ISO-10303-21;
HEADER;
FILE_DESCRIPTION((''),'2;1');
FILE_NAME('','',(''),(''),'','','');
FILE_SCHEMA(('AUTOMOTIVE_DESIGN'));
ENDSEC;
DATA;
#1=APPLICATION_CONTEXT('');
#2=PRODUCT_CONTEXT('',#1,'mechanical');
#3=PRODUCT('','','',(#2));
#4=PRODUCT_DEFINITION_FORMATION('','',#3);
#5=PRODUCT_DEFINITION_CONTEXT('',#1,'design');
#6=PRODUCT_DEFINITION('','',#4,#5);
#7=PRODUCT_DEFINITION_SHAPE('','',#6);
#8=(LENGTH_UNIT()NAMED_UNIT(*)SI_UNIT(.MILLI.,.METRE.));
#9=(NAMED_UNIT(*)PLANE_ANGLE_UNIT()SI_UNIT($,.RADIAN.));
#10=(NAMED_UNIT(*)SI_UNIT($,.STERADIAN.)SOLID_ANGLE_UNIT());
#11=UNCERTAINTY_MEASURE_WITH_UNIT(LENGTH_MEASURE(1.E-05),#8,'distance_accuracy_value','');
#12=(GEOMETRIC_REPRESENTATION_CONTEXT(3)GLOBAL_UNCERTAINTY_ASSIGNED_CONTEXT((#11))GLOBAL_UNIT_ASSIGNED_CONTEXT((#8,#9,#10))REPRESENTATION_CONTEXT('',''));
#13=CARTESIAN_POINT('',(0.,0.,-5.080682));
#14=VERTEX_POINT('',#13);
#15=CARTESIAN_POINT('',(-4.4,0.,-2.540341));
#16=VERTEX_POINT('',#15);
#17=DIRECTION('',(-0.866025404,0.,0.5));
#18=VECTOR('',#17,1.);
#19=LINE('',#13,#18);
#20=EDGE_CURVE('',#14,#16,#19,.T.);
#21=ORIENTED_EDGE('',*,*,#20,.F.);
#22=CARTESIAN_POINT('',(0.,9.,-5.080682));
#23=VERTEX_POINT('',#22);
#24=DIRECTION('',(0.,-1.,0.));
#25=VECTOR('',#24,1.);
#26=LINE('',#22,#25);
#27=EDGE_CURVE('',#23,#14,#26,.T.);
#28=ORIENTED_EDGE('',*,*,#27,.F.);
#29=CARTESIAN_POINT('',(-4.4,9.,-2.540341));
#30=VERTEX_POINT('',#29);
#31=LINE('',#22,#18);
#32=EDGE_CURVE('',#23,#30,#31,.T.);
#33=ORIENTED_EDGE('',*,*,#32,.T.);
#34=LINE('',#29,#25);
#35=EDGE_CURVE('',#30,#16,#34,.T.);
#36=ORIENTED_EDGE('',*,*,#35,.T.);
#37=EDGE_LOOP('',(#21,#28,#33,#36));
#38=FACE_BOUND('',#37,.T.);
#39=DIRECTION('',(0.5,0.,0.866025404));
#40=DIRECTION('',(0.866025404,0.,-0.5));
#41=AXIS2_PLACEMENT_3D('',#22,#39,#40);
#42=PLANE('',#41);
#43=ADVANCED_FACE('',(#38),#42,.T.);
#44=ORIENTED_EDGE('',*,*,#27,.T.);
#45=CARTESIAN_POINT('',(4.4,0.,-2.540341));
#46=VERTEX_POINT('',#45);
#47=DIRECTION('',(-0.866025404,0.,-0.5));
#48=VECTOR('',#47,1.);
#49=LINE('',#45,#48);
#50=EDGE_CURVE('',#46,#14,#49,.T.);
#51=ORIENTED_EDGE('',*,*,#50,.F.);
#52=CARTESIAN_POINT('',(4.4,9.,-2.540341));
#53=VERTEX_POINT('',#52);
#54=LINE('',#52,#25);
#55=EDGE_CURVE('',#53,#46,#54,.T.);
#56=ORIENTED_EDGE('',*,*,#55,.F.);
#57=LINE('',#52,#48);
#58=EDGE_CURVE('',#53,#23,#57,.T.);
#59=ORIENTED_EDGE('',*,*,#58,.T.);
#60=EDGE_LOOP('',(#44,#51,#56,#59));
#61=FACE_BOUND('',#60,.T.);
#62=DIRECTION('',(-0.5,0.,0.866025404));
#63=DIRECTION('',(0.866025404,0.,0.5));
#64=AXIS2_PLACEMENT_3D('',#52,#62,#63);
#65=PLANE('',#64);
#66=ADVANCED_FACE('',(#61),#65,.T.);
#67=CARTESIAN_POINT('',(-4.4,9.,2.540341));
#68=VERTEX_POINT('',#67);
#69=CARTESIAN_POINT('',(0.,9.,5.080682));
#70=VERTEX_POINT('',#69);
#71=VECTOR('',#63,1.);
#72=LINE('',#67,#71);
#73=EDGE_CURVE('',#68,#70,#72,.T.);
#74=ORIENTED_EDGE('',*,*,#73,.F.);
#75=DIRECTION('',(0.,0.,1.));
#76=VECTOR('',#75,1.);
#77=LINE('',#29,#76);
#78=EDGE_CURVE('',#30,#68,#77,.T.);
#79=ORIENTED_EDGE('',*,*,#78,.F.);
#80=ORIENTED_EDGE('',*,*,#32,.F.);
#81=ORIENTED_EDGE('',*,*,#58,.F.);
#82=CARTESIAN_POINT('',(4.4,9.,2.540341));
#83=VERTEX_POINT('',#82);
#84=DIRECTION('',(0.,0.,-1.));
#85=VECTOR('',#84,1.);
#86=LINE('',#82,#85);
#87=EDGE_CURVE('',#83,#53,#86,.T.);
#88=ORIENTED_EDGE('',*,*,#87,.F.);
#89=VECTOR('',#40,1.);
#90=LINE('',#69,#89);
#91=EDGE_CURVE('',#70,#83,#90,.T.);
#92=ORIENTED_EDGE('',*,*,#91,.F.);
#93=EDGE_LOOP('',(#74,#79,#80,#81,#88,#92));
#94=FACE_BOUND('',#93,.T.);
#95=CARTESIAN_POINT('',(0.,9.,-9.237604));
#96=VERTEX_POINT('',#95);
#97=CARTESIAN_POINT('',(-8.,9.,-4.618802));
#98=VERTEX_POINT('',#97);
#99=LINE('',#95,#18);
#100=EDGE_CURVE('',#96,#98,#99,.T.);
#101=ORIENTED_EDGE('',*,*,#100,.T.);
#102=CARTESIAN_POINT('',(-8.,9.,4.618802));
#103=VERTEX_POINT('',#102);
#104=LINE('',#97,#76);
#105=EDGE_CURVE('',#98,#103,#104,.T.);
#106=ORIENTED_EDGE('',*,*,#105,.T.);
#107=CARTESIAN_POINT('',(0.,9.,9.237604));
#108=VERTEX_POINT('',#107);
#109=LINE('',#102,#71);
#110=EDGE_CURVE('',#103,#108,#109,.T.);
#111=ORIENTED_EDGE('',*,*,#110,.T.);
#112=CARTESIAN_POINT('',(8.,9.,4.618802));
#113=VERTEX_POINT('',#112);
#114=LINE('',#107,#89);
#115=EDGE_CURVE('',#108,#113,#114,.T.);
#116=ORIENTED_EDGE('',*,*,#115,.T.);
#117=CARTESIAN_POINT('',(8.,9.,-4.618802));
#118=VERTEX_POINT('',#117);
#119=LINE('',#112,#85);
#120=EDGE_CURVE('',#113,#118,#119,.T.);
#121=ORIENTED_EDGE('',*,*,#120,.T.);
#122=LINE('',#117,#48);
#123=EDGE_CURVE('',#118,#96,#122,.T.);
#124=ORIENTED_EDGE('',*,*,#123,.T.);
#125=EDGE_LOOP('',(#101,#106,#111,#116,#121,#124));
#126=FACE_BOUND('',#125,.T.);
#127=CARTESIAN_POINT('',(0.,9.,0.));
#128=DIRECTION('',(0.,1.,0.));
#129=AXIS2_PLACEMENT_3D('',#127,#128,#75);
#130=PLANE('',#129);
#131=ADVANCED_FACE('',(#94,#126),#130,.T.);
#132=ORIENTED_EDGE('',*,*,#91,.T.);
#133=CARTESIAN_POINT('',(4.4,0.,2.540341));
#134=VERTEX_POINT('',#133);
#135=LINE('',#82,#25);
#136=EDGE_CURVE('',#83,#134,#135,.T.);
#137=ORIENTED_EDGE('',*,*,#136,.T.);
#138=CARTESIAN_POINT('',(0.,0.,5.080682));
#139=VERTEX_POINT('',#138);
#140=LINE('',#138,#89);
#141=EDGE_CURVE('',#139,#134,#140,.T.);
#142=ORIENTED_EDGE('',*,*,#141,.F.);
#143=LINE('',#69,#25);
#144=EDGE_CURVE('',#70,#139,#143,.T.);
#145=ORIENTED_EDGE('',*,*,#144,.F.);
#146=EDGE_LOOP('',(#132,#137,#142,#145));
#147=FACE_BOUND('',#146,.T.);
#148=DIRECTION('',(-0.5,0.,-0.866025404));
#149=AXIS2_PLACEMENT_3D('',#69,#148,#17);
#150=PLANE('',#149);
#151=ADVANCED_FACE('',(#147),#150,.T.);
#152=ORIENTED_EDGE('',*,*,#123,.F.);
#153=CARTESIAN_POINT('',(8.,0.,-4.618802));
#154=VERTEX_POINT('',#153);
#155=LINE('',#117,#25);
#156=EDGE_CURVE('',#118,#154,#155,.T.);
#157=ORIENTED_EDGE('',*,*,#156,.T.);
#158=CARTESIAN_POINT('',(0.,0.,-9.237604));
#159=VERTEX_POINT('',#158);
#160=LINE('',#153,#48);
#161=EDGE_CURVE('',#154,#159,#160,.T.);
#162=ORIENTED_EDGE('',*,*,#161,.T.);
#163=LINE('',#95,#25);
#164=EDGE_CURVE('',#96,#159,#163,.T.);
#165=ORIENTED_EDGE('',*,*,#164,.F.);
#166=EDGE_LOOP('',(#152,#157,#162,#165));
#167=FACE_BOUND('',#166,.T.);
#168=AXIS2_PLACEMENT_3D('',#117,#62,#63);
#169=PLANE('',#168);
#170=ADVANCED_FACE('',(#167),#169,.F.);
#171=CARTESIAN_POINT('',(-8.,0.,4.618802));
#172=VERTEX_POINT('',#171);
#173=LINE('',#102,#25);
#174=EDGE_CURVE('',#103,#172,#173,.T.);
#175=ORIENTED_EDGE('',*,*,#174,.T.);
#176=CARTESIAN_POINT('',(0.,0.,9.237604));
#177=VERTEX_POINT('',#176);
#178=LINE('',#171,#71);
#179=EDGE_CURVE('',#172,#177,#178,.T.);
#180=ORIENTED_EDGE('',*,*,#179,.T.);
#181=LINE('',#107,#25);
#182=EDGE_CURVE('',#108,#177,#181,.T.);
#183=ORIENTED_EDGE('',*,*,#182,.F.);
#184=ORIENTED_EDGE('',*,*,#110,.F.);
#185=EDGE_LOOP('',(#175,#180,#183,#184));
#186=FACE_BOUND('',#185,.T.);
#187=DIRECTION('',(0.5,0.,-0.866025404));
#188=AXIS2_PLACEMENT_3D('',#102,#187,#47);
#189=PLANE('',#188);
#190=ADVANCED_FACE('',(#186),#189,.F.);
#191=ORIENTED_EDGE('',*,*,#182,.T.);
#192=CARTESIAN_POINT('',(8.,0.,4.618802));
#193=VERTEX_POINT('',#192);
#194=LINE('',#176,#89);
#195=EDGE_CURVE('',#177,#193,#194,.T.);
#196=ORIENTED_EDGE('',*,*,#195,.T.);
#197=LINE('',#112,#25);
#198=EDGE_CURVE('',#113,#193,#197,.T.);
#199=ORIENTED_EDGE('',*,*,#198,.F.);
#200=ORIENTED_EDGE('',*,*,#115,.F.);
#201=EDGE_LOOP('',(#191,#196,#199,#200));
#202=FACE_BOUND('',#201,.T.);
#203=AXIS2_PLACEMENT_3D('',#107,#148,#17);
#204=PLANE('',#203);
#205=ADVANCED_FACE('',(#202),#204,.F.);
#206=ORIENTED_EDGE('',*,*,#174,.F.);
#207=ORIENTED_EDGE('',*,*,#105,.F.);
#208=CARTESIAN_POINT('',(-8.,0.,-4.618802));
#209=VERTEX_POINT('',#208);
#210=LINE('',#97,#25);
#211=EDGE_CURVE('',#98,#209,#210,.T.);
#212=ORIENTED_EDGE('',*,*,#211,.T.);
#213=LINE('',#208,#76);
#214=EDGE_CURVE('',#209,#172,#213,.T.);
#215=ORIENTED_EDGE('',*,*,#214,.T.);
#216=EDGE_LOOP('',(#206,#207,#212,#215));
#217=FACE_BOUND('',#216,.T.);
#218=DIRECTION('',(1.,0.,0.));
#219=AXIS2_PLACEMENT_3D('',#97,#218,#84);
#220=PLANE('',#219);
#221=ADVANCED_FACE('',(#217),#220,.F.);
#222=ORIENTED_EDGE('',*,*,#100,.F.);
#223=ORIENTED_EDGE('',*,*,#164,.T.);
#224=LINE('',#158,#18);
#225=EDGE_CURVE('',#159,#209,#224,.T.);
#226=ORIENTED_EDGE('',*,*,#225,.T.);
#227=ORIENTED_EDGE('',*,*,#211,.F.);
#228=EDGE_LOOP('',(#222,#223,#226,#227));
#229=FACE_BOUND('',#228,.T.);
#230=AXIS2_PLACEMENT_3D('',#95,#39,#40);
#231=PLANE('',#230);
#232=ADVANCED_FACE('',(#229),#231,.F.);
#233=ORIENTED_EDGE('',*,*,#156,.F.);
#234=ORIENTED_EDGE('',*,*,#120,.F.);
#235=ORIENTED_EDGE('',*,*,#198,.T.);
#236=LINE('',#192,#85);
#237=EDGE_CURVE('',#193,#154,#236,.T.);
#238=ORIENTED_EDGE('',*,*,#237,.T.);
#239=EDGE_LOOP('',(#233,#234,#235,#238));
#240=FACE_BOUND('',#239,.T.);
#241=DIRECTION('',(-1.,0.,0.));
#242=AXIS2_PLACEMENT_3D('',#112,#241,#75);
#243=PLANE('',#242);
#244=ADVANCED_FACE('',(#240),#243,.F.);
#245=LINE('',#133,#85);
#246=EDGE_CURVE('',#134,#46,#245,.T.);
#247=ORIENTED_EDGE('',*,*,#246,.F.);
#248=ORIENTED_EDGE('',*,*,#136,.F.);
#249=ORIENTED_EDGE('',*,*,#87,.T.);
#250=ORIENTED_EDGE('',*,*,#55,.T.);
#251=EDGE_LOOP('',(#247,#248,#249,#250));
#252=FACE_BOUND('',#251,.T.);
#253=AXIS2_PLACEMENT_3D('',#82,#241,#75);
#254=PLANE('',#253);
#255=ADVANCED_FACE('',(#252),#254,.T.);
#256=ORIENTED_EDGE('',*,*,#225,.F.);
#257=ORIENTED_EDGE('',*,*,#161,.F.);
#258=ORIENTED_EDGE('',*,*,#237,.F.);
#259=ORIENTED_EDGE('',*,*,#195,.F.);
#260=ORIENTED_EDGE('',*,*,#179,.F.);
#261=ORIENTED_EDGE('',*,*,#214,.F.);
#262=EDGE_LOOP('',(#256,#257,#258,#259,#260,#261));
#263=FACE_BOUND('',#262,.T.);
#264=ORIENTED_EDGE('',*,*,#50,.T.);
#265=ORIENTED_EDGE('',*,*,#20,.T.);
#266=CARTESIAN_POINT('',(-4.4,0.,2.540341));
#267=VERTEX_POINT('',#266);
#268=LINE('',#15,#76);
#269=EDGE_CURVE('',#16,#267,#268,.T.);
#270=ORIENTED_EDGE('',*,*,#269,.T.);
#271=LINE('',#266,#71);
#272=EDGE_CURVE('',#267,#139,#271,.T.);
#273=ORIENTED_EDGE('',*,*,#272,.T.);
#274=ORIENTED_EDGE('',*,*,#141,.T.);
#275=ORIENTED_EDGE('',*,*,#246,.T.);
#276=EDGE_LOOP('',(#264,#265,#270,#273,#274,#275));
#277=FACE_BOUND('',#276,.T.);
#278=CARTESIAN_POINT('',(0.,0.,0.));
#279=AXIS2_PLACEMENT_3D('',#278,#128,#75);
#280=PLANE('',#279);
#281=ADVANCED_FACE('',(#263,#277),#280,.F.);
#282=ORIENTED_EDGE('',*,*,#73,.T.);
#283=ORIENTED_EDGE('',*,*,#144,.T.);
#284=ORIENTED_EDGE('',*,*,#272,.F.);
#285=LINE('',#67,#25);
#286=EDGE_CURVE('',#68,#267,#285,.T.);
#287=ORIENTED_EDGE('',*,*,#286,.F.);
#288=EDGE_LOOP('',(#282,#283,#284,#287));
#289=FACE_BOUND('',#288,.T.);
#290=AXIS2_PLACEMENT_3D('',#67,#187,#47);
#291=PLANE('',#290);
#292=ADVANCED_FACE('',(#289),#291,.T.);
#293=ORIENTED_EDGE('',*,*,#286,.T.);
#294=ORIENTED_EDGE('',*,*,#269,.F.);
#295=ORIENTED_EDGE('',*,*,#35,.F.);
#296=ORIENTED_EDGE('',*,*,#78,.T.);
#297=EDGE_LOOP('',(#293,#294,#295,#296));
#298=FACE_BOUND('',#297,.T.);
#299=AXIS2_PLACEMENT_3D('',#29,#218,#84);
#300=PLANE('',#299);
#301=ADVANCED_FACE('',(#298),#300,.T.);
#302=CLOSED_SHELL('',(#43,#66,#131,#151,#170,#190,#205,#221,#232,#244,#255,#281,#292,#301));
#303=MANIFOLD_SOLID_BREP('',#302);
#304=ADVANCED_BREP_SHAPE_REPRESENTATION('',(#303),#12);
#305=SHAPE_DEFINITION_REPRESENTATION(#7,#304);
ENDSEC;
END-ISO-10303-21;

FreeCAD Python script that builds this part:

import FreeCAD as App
import Part
import Sketcher
from FreeCAD import Vector
Q = App.Units.Quantity


def add_polygon(sketch, points):
    """Adds a closed chain of lines whose ends are joined by coincident constraints."""
    first, n = sketch.GeometryCount, len(points)
    for a, b in zip(points, points[1:] + points[:1]):
        sketch.addGeometry(Part.LineSegment(App.Vector(*a, 0), App.Vector(*b, 0)), False)
    for i in range(n):
        sketch.addConstraint(Sketcher.Constraint("Coincident", first + i, 2, first + (i + 1) % n, 1))

doc = App.newDocument("Part")
body = doc.addObject("PartDesign::Body", "Body")

sketch1 = doc.addObject("Sketcher::SketchObject", "Sketch")
body.addObject(sketch1)
sketch1.AttachmentSupport = (doc.XZ_Plane, [""])
sketch1.MapMode = "FlatFace"
add_polygon(sketch1, [(0, 9), (8, 5), (8, -5), (0, -9), (-8, -5), (-8, 5)])
add_polygon(sketch1, [(4, 3), (0, 5), (-4, 3), (-4, -3), (0, -5), (4, -3)])
sketch1.addConstraint([
    Sketcher.Constraint("Vertical", 1),
    Sketcher.Constraint("Vertical", 4),
    Sketcher.Constraint("Vertical", 8),
    Sketcher.Constraint("Vertical", 11),
    Sketcher.Constraint("Symmetric", 0, 2, 3, 2, -1, 1),
    Sketcher.Constraint("Symmetric", 2, 2, 5, 2, -1, 1),
    Sketcher.Constraint("Symmetric", 6, 2, 9, 2, -1, 1),
    Sketcher.Constraint("Symmetric", 7, 2, 10, 2, -1, 1),
    Sketcher.Constraint("PointOnObject", 2, 2, -2),
    Sketcher.Constraint("PointOnObject", 6, 2, -2),
    Sketcher.Constraint("Parallel", 2, 5),
    Sketcher.Constraint("Parallel", 3, 6),
    Sketcher.Constraint("Parallel", 5, 7),
    Sketcher.Constraint("Parallel", 6, 9),
    Sketcher.Constraint("Horizontal", 1, 2, 3, 2),
    Sketcher.Constraint("Angle", 0, Q("-30 deg")),
    Sketcher.Constraint("DistanceX", -1, 1, 0, 2, Q("8 mm")),
    Sketcher.Constraint("DistanceX", 7, 2, -1, 1, Q("4.4 mm")),
    Sketcher.Constraint("DistanceY", 1, 2, 1, 1, Q("9.237604 mm")),
    Sketcher.Constraint("DistanceY", 8, 2, 8, 1, Q("5.080682 mm")),
])
pad1 = doc.addObject("PartDesign::Pad", "Pad")
body.addObject(pad1)
pad1.Profile = sketch1
pad1.Length = 9
pad1.Reversed = True

doc.recompute()
